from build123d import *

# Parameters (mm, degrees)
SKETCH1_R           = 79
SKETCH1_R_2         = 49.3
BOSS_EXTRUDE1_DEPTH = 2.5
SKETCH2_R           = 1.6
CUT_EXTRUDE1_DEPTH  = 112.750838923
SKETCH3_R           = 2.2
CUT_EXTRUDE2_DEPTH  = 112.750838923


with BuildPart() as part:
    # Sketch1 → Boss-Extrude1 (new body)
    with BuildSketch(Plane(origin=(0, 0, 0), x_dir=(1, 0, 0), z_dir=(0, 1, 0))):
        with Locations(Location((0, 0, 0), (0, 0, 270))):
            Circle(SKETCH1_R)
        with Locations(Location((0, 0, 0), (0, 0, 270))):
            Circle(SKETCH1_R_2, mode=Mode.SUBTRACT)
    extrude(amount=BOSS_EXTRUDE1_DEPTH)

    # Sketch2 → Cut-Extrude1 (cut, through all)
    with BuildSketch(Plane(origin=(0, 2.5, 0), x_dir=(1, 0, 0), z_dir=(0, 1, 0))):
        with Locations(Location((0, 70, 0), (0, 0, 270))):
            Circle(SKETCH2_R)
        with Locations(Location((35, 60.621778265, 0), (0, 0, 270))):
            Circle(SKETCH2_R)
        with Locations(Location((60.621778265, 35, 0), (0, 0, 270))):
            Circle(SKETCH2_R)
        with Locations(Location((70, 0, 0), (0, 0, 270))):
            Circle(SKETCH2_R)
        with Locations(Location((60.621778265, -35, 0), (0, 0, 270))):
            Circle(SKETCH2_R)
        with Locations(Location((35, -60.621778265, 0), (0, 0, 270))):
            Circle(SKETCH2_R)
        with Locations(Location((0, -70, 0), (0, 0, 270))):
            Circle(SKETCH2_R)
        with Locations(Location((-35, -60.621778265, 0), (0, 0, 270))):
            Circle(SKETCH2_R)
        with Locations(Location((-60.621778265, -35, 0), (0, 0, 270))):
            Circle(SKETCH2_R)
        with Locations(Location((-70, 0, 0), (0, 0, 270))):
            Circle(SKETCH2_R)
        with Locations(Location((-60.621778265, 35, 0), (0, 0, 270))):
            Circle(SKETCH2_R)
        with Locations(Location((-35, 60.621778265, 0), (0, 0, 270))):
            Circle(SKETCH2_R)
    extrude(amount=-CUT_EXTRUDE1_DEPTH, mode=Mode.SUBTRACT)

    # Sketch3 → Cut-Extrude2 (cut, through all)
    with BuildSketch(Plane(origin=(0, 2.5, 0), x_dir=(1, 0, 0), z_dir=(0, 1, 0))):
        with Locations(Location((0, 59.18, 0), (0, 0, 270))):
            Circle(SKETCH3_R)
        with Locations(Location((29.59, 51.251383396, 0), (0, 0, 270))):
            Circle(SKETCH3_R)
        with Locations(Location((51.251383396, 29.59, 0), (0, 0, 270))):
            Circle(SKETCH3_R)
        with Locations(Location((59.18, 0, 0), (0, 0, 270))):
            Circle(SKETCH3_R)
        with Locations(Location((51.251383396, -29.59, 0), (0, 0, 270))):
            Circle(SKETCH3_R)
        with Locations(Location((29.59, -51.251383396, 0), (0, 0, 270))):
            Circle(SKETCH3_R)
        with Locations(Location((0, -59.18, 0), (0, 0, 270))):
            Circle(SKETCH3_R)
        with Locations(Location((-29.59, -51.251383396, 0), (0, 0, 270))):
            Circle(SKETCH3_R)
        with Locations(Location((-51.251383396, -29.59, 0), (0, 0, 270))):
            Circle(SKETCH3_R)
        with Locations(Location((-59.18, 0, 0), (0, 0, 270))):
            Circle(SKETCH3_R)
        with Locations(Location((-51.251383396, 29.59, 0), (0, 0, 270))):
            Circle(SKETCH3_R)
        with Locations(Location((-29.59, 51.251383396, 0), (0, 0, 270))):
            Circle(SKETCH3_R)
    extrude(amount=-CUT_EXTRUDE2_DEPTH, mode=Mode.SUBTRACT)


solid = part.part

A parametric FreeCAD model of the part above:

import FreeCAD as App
import Part
import Sketcher

V = App.Vector
Q = App.Units.Quantity

doc = App.newDocument("Part")
body = doc.addObject("PartDesign::Body", "Body")

# Sketch on XZ plane
sketch1 = body.newObject("Sketcher::SketchObject", "Sketch")
sketch1.AttachmentSupport = (doc.getObject("XZ_Plane"), [""])
sketch1.MapMode = "FlatFace"
sketch1.addGeometry(Part.Circle(V(0, 0, 0), V(0, 0, 1), 79), False)
sketch1.addGeometry(Part.Circle(V(0, 0, 0), V(0, 0, 1), 49), False)
sketch1.addConstraint(Sketcher.Constraint("Coincident", 0, 3, -1, 1))
sketch1.addConstraint(Sketcher.Constraint("Coincident", 1, 3, -1, 1))
sketch1.addConstraint(Sketcher.Constraint("Diameter", 0, Q("158 mm")))
sketch1.addConstraint(Sketcher.Constraint("Diameter", 1, Q("98.6 mm")))
pad1 = body.newObject("PartDesign::Pad", "Pad")
pad1.Profile = sketch1
pad1.Length = 2.5
pad1.Reversed = True

# Sketch on XZ plane
sketch2 = body.newObject("Sketcher::SketchObject", "Sketch001")
sketch2.AttachmentSupport = (doc.getObject("XZ_Plane"), [""])
sketch2.MapMode = "FlatFace"
sketch2.AttachmentOffset = App.Placement(V(0, 0, -2.5), App.Rotation())
sketch2.addGeometry(Part.Circle(V(0, -70, 0), V(0, 0, 1), 1.6), False)
sketch2.addGeometry(Part.Circle(V(35, -60.6, 0), V(0, 0, 1), 1.6), False)
sketch2.addGeometry(Part.Circle(V(60.6, -35, 0), V(0, 0, 1), 1.6), False)
sketch2.addGeometry(Part.Circle(V(70, 0, 0), V(0, 0, 1), 1.6), False)
sketch2.addGeometry(Part.Circle(V(60.6, 35, 0), V(0, 0, 1), 1.6), False)
sketch2.addGeometry(Part.Circle(V(35, 60.6, 0), V(0, 0, 1), 1.6), False)
sketch2.addGeometry(Part.Circle(V(0, 70, 0), V(0, 0, 1), 1.6), False)
sketch2.addGeometry(Part.Circle(V(-35, 60.6, 0), V(0, 0, 1), 1.6), False)
sketch2.addGeometry(Part.Circle(V(-60.6, 35, 0), V(0, 0, 1), 1.6), False)
sketch2.addGeometry(Part.Circle(V(-70, 0, 0), V(0, 0, 1), 1.6), False)
sketch2.addGeometry(Part.Circle(V(-60.6, -35, 0), V(0, 0, 1), 1.6), False)
sketch2.addGeometry(Part.Circle(V(-35, -60.6, 0), V(0, 0, 1), 1.6), False)
sketch2.addConstraint(Sketcher.Constraint("Equal", 0, 1))
sketch2.addConstraint(Sketcher.Constraint("Equal", 1, 2))
sketch2.addConstraint(Sketcher.Constraint("Equal", 2, 3))
sketch2.addConstraint(Sketcher.Constraint("Equal", 3, 4))
sketch2.addConstraint(Sketcher.Constraint("Equal", 4, 5))
sketch2.addConstraint(Sketcher.Constraint("Equal", 5, 6))
sketch2.addConstraint(Sketcher.Constraint("Equal", 6, 7))
sketch2.addConstraint(Sketcher.Constraint("Equal", 7, 8))
sketch2.addConstraint(Sketcher.Constraint("Equal", 8, 9))
sketch2.addConstraint(Sketcher.Constraint("Equal", 9, 10))
sketch2.addConstraint(Sketcher.Constraint("Equal", 10, 11))
sketch2.addConstraint(Sketcher.Constraint("Symmetric", 0, 3, 6, 3, -1, 1))
sketch2.addConstraint(Sketcher.Constraint("Symmetric", 1, 3, 7, 3, -1, 1))
sketch2.addConstraint(Sketcher.Constraint("Symmetric", 2, 3, 8, 3, -1, 1))
sketch2.addConstraint(Sketcher.Constraint("Symmetric", 3, 3, 9, 3, -1, 1))
sketch2.addConstraint(Sketcher.Constraint("Symmetric", 4, 3, 10, 3, -1, 1))
sketch2.addConstraint(Sketcher.Constraint("Symmetric", 5, 3, 11, 3, -1, 1))
sketch2.addConstraint(Sketcher.Constraint("Symmetric", 5, 3, 7, 3, -2))
sketch2.addConstraint(Sketcher.Constraint("Symmetric", 4, 3, 8, 3, -2))
sketch2.addConstraint(Sketcher.Constraint("PointOnObject", 0, 3, -2))
sketch2.addConstraint(Sketcher.Constraint("PointOnObject", 3, 3, -1))
sketch2.addConstraint(Sketcher.Constraint("Diameter", 0, Q("3.2 mm")))
sketch2.addConstraint(Sketcher.Constraint("DistanceY", 0, 3, -1, 1, Q("70 mm")))
sketch2.addConstraint(Sketcher.Constraint("DistanceX", -1, 1, 1, 3, Q("35 mm")))
sketch2.addConstraint(Sketcher.Constraint("DistanceY", 2, 3, -1, 1, Q("35 mm")))
sketch2.addConstraint(Sketcher.Constraint("DistanceX", -1, 1, 3, 3, Q("70 mm")))
sketch2.addConstraint(Sketcher.Constraint("DistanceY", 1, 3, -1, 1, Q("60.621778 mm")))
sketch2.addConstraint(Sketcher.Constraint("DistanceX", -1, 1, 2, 3, Q("60.621778 mm")))
pocket1 = body.newObject("PartDesign::Pocket", "Pocket")
pocket1.Profile = sketch2
pocket1.Type = "ThroughAll"
pocket1.Reversed = True

# Sketch on XZ plane
sketch3 = body.newObject("Sketcher::SketchObject", "Sketch002")
sketch3.AttachmentSupport = (doc.getObject("XZ_Plane"), [""])
sketch3.MapMode = "FlatFace"
sketch3.AttachmentOffset = App.Placement(V(0, 0, -2.5), App.Rotation())
sketch3.addGeometry(Part.Circle(V(0, -59.2, 0), V(0, 0, 1), 2.2), False)
sketch3.addGeometry(Part.Circle(V(29.6, -51.3, 0), V(0, 0, 1), 2.2), False)
sketch3.addGeometry(Part.Circle(V(51.3, -29.6, 0), V(0, 0, 1), 2.2), False)
sketch3.addGeometry(Part.Circle(V(59.2, 0, 0), V(0, 0, 1), 2.2), False)
sketch3.addGeometry(Part.Circle(V(51.3, 29.6, 0), V(0, 0, 1), 2.2), False)
sketch3.addGeometry(Part.Circle(V(29.6, 51.3, 0), V(0, 0, 1), 2.2), False)
sketch3.addGeometry(Part.Circle(V(0, 59.2, 0), V(0, 0, 1), 2.2), False)
sketch3.addGeometry(Part.Circle(V(-29.6, 51.3, 0), V(0, 0, 1), 2.2), False)
sketch3.addGeometry(Part.Circle(V(-51.3, 29.6, 0), V(0, 0, 1), 2.2), False)
sketch3.addGeometry(Part.Circle(V(-59.2, 0, 0), V(0, 0, 1), 2.2), False)
sketch3.addGeometry(Part.Circle(V(-51.3, -29.6, 0), V(0, 0, 1), 2.2), False)
sketch3.addGeometry(Part.Circle(V(-29.6, -51.3, 0), V(0, 0, 1), 2.2), False)
sketch3.addConstraint(Sketcher.Constraint("Equal", 0, 1))
sketch3.addConstraint(Sketcher.Constraint("Equal", 1, 2))
sketch3.addConstraint(Sketcher.Constraint("Equal", 2, 3))
sketch3.addConstraint(Sketcher.Constraint("Equal", 3, 4))
sketch3.addConstraint(Sketcher.Constraint("Equal", 4, 5))
sketch3.addConstraint(Sketcher.Constraint("Equal", 5, 6))
sketch3.addConstraint(Sketcher.Constraint("Equal", 6, 7))
sketch3.addConstraint(Sketcher.Constraint("Equal", 7, 8))
sketch3.addConstraint(Sketcher.Constraint("Equal", 8, 9))
sketch3.addConstraint(Sketcher.Constraint("Equal", 9, 10))
sketch3.addConstraint(Sketcher.Constraint("Equal", 10, 11))
sketch3.addConstraint(Sketcher.Constraint("Symmetric", 0, 3, 6, 3, -1, 1))
sketch3.addConstraint(Sketcher.Constraint("Symmetric", 1, 3, 7, 3, -1, 1))
sketch3.addConstraint(Sketcher.Constraint("Symmetric", 2, 3, 8, 3, -1, 1))
sketch3.addConstraint(Sketcher.Constraint("Symmetric", 3, 3, 9, 3, -1, 1))
sketch3.addConstraint(Sketcher.Constraint("Symmetric", 4, 3, 10, 3, -1, 1))
sketch3.addConstraint(Sketcher.Constraint("Symmetric", 5, 3, 11, 3, -1, 1))
sketch3.addConstraint(Sketcher.Constraint("Symmetric", 5, 3, 7, 3, -2))
sketch3.addConstraint(Sketcher.Constraint("Symmetric", 4, 3, 8, 3, -2))
sketch3.addConstraint(Sketcher.Constraint("PointOnObject", 0, 3, -2))
sketch3.addConstraint(Sketcher.Constraint("PointOnObject", 3, 3, -1))
sketch3.addConstraint(Sketcher.Constraint("Diameter", 0, Q("4.4 mm")))
sketch3.addConstraint(Sketcher.Constraint("DistanceY", 0, 3, -1, 1, Q("59.18 mm")))
sketch3.addConstraint(Sketcher.Constraint("DistanceX", -1, 1, 1, 3, Q("29.59 mm")))
sketch3.addConstraint(Sketcher.Constraint("DistanceY", 2, 3, -1, 1, Q("29.59 mm")))
sketch3.addConstraint(Sketcher.Constraint("DistanceX", -1, 1, 3, 3, Q("59.18 mm")))
sketch3.addConstraint(Sketcher.Constraint("DistanceY", 1, 3, -1, 1, Q("51.251383 mm")))
sketch3.addConstraint(Sketcher.Constraint("DistanceX", -1, 1, 2, 3, Q("51.251383 mm")))
pocket2 = body.newObject("PartDesign::Pocket", "Pocket001")
pocket2.Profile = sketch3
pocket2.Type = "ThroughAll"
pocket2.Reversed = True

doc.recompute()
